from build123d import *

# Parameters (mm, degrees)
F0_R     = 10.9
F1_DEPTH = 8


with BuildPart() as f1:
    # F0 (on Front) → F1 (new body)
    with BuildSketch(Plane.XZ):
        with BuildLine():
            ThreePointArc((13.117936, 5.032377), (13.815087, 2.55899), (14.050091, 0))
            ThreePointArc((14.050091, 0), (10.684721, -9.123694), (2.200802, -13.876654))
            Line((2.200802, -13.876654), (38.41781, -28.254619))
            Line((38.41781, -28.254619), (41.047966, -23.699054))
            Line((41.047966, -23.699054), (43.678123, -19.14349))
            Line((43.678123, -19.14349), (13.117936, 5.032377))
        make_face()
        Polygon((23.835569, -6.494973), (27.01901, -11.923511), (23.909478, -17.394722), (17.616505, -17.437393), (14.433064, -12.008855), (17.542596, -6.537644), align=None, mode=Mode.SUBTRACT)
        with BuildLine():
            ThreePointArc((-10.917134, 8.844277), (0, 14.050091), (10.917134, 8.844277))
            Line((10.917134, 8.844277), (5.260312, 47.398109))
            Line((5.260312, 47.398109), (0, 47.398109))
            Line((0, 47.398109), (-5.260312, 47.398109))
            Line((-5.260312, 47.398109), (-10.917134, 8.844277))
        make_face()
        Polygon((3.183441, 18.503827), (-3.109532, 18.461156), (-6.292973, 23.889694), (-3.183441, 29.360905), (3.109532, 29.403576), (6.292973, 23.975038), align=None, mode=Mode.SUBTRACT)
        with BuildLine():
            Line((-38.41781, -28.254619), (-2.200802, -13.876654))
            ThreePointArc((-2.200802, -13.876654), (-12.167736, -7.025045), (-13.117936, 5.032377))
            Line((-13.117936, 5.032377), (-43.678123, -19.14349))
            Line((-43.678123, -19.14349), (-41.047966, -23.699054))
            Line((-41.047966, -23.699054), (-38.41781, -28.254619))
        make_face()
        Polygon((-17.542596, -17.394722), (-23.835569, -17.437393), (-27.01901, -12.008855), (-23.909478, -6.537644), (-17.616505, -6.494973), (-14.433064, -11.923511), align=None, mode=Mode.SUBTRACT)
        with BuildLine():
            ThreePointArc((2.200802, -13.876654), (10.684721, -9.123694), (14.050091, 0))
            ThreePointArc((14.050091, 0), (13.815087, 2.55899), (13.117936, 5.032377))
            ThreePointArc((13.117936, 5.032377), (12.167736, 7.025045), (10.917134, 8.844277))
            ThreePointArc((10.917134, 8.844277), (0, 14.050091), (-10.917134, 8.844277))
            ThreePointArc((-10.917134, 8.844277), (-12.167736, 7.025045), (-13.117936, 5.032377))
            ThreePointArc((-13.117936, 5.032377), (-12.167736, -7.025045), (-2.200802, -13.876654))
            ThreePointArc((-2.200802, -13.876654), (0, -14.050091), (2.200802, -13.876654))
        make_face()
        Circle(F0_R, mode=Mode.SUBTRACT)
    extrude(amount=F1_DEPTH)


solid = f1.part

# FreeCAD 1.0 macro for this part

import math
import FreeCAD as App
import Part
import Sketcher
Q = App.Units.Quantity

doc = App.newDocument("Part")
body = doc.addObject("PartDesign::Body", "Body")

sketch1 = body.newObject("Sketcher::SketchObject", "Sketch")
sketch1.AttachmentSupport = (doc.getObject("XZ_Plane"), [""])
sketch1.MapMode = "FlatFace"
sketch1.addGeometry(Part.LineSegment(App.Vector(43.678123, -19.14349, 0), App.Vector(13.117936, 5.032377, 0)), False)
sketch1.addGeometry(Part.ArcOfCircle(Part.Circle(App.Vector(0, -0.000002, 0), App.Vector(0, 0, 1), 14.050092), math.radians(20.988102), math.radians(39.01191)), False)
sketch1.addGeometry(Part.LineSegment(App.Vector(10.917134, 8.844277, 0), App.Vector(5.260312, 47.398109, 0)), False)
sketch1.addGeometry(Part.LineSegment(App.Vector(5.260312, 47.398109, 0), App.Vector(-5.260312, 47.398109, 0)), False)
sketch1.addGeometry(Part.LineSegment(App.Vector(-5.260312, 47.398109, 0), App.Vector(-10.917134, 8.844277, 0)), False)
sketch1.addGeometry(Part.ArcOfCircle(Part.Circle(App.Vector(0, -0.000002, 0), App.Vector(0, 0, 1), 14.050092), math.radians(140.98809), math.radians(159.011898)), False)
sketch1.addGeometry(Part.LineSegment(App.Vector(-13.117936, 5.032377, 0), App.Vector(-43.678123, -19.14349, 0)), False)
sketch1.addGeometry(Part.LineSegment(App.Vector(-43.678123, -19.14349, 0), App.Vector(-41.047966, -23.699054, 0)), False)
sketch1.addGeometry(Part.LineSegment(App.Vector(-41.047966, -23.699054, 0), App.Vector(-38.41781, -28.254619, 0)), False)
sketch1.addGeometry(Part.LineSegment(App.Vector(-38.41781, -28.254619, 0), App.Vector(-2.200802, -13.876654, 0)), False)
sketch1.addGeometry(Part.ArcOfCircle(Part.Circle(App.Vector(0, -0.000004, 0), App.Vector(0, 0, 1), 14.050087), math.radians(-99.011908), math.radians(-80.988092)), False)
sketch1.addGeometry(Part.LineSegment(App.Vector(2.200802, -13.876654, 0), App.Vector(38.41781, -28.254619, 0)), False)
sketch1.addGeometry(Part.LineSegment(App.Vector(38.41781, -28.254619, 0), App.Vector(41.047966, -23.699054, 0)), False)
sketch1.addGeometry(Part.LineSegment(App.Vector(41.047966, -23.699054, 0), App.Vector(43.678123, -19.14349, 0)), False)
sketch1.addGeometry(Part.LineSegment(App.Vector(-17.542596, -17.394722, 0), App.Vector(-23.835569, -17.437393, 0)), False)
sketch1.addGeometry(Part.LineSegment(App.Vector(-23.835569, -17.437393, 0), App.Vector(-27.01901, -12.008855, 0)), False)
sketch1.addGeometry(Part.LineSegment(App.Vector(-27.01901, -12.008855, 0), App.Vector(-23.909478, -6.537644, 0)), False)
sketch1.addGeometry(Part.LineSegment(App.Vector(-23.909478, -6.537644, 0), App.Vector(-17.616505, -6.494973, 0)), False)
sketch1.addGeometry(Part.LineSegment(App.Vector(-17.616505, -6.494973, 0), App.Vector(-14.433064, -11.923511, 0)), False)
sketch1.addGeometry(Part.LineSegment(App.Vector(-14.433064, -11.923511, 0), App.Vector(-17.542596, -17.394722, 0)), False)
sketch1.addGeometry(Part.LineSegment(App.Vector(17.542596, -6.537644, 0), App.Vector(23.835569, -6.494973, 0)), False)
sketch1.addGeometry(Part.LineSegment(App.Vector(23.835569, -6.494973, 0), App.Vector(27.01901, -11.923511, 0)), False)
sketch1.addGeometry(Part.LineSegment(App.Vector(27.01901, -11.923511, 0), App.Vector(23.909478, -17.394722, 0)), False)
sketch1.addGeometry(Part.LineSegment(App.Vector(23.909478, -17.394722, 0), App.Vector(17.616505, -17.437393, 0)), False)
sketch1.addGeometry(Part.LineSegment(App.Vector(17.616505, -17.437393, 0), App.Vector(14.433064, -12.008855, 0)), False)
sketch1.addGeometry(Part.LineSegment(App.Vector(14.433064, -12.008855, 0), App.Vector(17.542596, -6.537644, 0)), False)
sketch1.addGeometry(Part.Circle(App.Vector(0, 0, 0), App.Vector(0, 0, 1), 10.9), False)
sketch1.addGeometry(Part.LineSegment(App.Vector(3.183441, 18.503827, 0), App.Vector(-3.109532, 18.461156, 0)), False)
sketch1.addGeometry(Part.LineSegment(App.Vector(-3.109532, 18.461156, 0), App.Vector(-6.292973, 23.889694, 0)), False)
sketch1.addGeometry(Part.LineSegment(App.Vector(-6.292973, 23.889694, 0), App.Vector(-3.183441, 29.360905, 0)), False)
sketch1.addGeometry(Part.LineSegment(App.Vector(-3.183441, 29.360905, 0), App.Vector(3.109532, 29.403576, 0)), False)
sketch1.addGeometry(Part.LineSegment(App.Vector(3.109532, 29.403576, 0), App.Vector(6.292973, 23.975038, 0)), False)
sketch1.addGeometry(Part.LineSegment(App.Vector(6.292973, 23.975038, 0), App.Vector(3.183441, 18.503827, 0)), False)
sketch1.addConstraint(Sketcher.Constraint("Coincident", 0, 2, 1, 1))
sketch1.addConstraint(Sketcher.Constraint("Coincident", 1, 2, 2, 1))
sketch1.addConstraint(Sketcher.Constraint("Coincident", 2, 2, 3, 1))
sketch1.addConstraint(Sketcher.Constraint("Coincident", 3, 2, 4, 1))
sketch1.addConstraint(Sketcher.Constraint("Coincident", 4, 2, 5, 1))
sketch1.addConstraint(Sketcher.Constraint("Coincident", 5, 2, 6, 1))
sketch1.addConstraint(Sketcher.Constraint("Coincident", 6, 2, 7, 1))
sketch1.addConstraint(Sketcher.Constraint("Coincident", 7, 2, 8, 1))
sketch1.addConstraint(Sketcher.Constraint("Coincident", 8, 2, 9, 1))
sketch1.addConstraint(Sketcher.Constraint("Coincident", 9, 2, 10, 1))
sketch1.addConstraint(Sketcher.Constraint("Coincident", 10, 2, 11, 1))
sketch1.addConstraint(Sketcher.Constraint("Coincident", 11, 2, 12, 1))
sketch1.addConstraint(Sketcher.Constraint("Coincident", 12, 2, 13, 1))
sketch1.addConstraint(Sketcher.Constraint("Coincident", 13, 2, 0, 1))
sketch1.addConstraint(Sketcher.Constraint("Coincident", 14, 2, 15, 1))
sketch1.addConstraint(Sketcher.Constraint("Coincident", 15, 2, 16, 1))
sketch1.addConstraint(Sketcher.Constraint("Coincident", 16, 2, 17, 1))
sketch1.addConstraint(Sketcher.Constraint("Coincident", 17, 2, 18, 1))
sketch1.addConstraint(Sketcher.Constraint("Coincident", 18, 2, 19, 1))
sketch1.addConstraint(Sketcher.Constraint("Coincident", 19, 2, 14, 1))
sketch1.addConstraint(Sketcher.Constraint("Coincident", 20, 2, 21, 1))
sketch1.addConstraint(Sketcher.Constraint("Coincident", 21, 2, 22, 1))
sketch1.addConstraint(Sketcher.Constraint("Coincident", 22, 2, 23, 1))
sketch1.addConstraint(Sketcher.Constraint("Coincident", 23, 2, 24, 1))
sketch1.addConstraint(Sketcher.Constraint("Coincident", 24, 2, 25, 1))
sketch1.addConstraint(Sketcher.Constraint("Coincident", 25, 2, 20, 1))
sketch1.addConstraint(Sketcher.Constraint("Coincident", 27, 2, 28, 1))
sketch1.addConstraint(Sketcher.Constraint("Coincident", 28, 2, 29, 1))
sketch1.addConstraint(Sketcher.Constraint("Coincident", 29, 2, 30, 1))
sketch1.addConstraint(Sketcher.Constraint("Coincident", 30, 2, 31, 1))
sketch1.addConstraint(Sketcher.Constraint("Coincident", 31, 2, 32, 1))
sketch1.addConstraint(Sketcher.Constraint("Coincident", 32, 2, 27, 1))
sketch1.addConstraint(Sketcher.Constraint("Horizontal", 3))
sketch1.addConstraint(Sketcher.Constraint("Coincident", 1, 3, -1, 1))
sketch1.addConstraint(Sketcher.Constraint("Coincident", 5, 3, -1, 1))
sketch1.addConstraint(Sketcher.Constraint("Coincident", 10, 3, -1, 1))
sketch1.addConstraint(Sketcher.Constraint("Coincident", 26, 3, -1, 1))
sketch1.addConstraint(Sketcher.Constraint("Equal", 1, 5))
sketch1.addConstraint(Sketcher.Constraint("Symmetric", 8, 2, 11, 2, -2))
sketch1.addConstraint(Sketcher.Constraint("Symmetric", 7, 2, 12, 2, -2))
sketch1.addConstraint(Sketcher.Constraint("Symmetric", 6, 2, 13, 2, -2))
sketch1.addConstraint(Sketcher.Constraint("Parallel", 7, 8))
sketch1.addConstraint(Sketcher.Constraint("Parallel", 14, 17))
sketch1.addConstraint(Sketcher.Constraint("Parallel", 15, 18))
sketch1.addConstraint(Sketcher.Constraint("Parallel", 16, 19))
sketch1.addConstraint(Sketcher.Constraint("Parallel", 17, 20))
sketch1.addConstraint(Sketcher.Constraint("Parallel", 18, 21))
sketch1.addConstraint(Sketcher.Constraint("Parallel", 19, 22))
sketch1.addConstraint(Sketcher.Constraint("Parallel", 20, 23))
sketch1.addConstraint(Sketcher.Constraint("Parallel", 21, 24))
sketch1.addConstraint(Sketcher.Constraint("Parallel", 22, 25))
sketch1.addConstraint(Sketcher.Constraint("Parallel", 23, 27))
sketch1.addConstraint(Sketcher.Constraint("Parallel", 24, 28))
sketch1.addConstraint(Sketcher.Constraint("Parallel", 25, 29))
sketch1.addConstraint(Sketcher.Constraint("Parallel", 27, 30))
sketch1.addConstraint(Sketcher.Constraint("Parallel", 28, 31))
sketch1.addConstraint(Sketcher.Constraint("Parallel", 29, 32))
sketch1.addConstraint(Sketcher.Constraint("Horizontal", 1, 2, 4, 2))
sketch1.addConstraint(Sketcher.Constraint("Horizontal", 0, 2, 5, 2))
sketch1.addConstraint(Sketcher.Constraint("Horizontal", 9, 2, 10, 2))
sketch1.addConstraint(Sketcher.Constraint("Horizontal", 17, 2, 20, 2))
sketch1.addConstraint(Sketcher.Constraint("Horizontal", 18, 2, 21, 2))
sketch1.addConstraint(Sketcher.Constraint("Horizontal", 19, 2, 22, 2))
sketch1.addConstraint(Sketcher.Constraint("Horizontal", 14, 2, 23, 2))
sketch1.addConstraint(Sketcher.Constraint("Horizontal", 15, 2, 24, 2))
sketch1.addConstraint(Sketcher.Constraint("Equal", 0, 2))
sketch1.addConstraint(Sketcher.Constraint("Equal", 2, 4))
sketch1.addConstraint(Sketcher.Constraint("Equal", 7, 8))
sketch1.addConstraint(Sketcher.Constraint("Equal", 6, 9))
sketch1.addConstraint(Sketcher.Constraint("Equal", 14, 15))
sketch1.addConstraint(Sketcher.Constraint("Equal", 15, 16))
sketch1.addConstraint(Sketcher.Constraint("Equal", 16, 17))
sketch1.addConstraint(Sketcher.Constraint("Equal", 25, 27))
sketch1.addConstraint(Sketcher.Constraint("Equal", 27, 28))
sketch1.addConstraint(Sketcher.Constraint("Equal", 28, 29))
sketch1.addConstraint(Sketcher.Constraint("Equal", 29, 30))
sketch1.addConstraint(Sketcher.Constraint("Diameter", 26, 21.8))
sketch1.addConstraint(Sketcher.Constraint("Angle", 7, Q("-59.999992 deg")))
sketch1.addConstraint(Sketcher.Constraint("Radius", 1, 14.050092))
sketch1.addConstraint(Sketcher.Constraint("Radius", 10, 14.050087))
sketch1.addConstraint(Sketcher.Constraint("DistanceX", 9, 2, -1, 1, 2.200802))
sketch1.addConstraint(Sketcher.Constraint("DistanceX", 1, 2, 0, 2, 2.200802))
sketch1.addConstraint(Sketcher.Constraint("DistanceY", 0, 2, 1, 2, 3.8119))
sketch1.addConstraint(Sketcher.Constraint("DistanceY", 12, 2, 10, 2, 9.8224))
sketch1.addConstraint(Sketcher.Constraint("DistanceY", 7, 2, 15, 2, 11.690199))
sketch1.addConstraint(Sketcher.Constraint("DistanceX", 8, 2, 15, 2, 11.3988))
sketch1.addConstraint(Sketcher.Constraint("DistanceX", 21, 2, 11, 2, 11.3988))
sketch1.addConstraint(Sketcher.Constraint("Distance", 0, 38.966621))
sketch1.addConstraint(Sketcher.Constraint("Distance", 16, 6.293118))
sketch1.addConstraint(Sketcher.Constraint("DistanceX", 3, 2, 3, 1, 10.520624))
sketch1.addConstraint(Sketcher.Constraint("DistanceX", 14, 2, -1, 1, 23.835569))
sketch1.addConstraint(Sketcher.Constraint("DistanceX", 16, 2, -1, 1, 23.909478))
sketch1.addConstraint(Sketcher.Constraint("DistanceY", 18, 2, -1, 1, 11.923511))
sketch1.addConstraint(Sketcher.Constraint("DistanceX", 29, 2, -1, 1, 3.183441))
sketch1.addConstraint(Sketcher.Constraint("DistanceY", -1, 1, 31, 2, 23.975038))
pad1 = body.newObject("PartDesign::Pad", "Pad")
pad1.Profile = sketch1
pad1.Length = 8

doc.recompute()
